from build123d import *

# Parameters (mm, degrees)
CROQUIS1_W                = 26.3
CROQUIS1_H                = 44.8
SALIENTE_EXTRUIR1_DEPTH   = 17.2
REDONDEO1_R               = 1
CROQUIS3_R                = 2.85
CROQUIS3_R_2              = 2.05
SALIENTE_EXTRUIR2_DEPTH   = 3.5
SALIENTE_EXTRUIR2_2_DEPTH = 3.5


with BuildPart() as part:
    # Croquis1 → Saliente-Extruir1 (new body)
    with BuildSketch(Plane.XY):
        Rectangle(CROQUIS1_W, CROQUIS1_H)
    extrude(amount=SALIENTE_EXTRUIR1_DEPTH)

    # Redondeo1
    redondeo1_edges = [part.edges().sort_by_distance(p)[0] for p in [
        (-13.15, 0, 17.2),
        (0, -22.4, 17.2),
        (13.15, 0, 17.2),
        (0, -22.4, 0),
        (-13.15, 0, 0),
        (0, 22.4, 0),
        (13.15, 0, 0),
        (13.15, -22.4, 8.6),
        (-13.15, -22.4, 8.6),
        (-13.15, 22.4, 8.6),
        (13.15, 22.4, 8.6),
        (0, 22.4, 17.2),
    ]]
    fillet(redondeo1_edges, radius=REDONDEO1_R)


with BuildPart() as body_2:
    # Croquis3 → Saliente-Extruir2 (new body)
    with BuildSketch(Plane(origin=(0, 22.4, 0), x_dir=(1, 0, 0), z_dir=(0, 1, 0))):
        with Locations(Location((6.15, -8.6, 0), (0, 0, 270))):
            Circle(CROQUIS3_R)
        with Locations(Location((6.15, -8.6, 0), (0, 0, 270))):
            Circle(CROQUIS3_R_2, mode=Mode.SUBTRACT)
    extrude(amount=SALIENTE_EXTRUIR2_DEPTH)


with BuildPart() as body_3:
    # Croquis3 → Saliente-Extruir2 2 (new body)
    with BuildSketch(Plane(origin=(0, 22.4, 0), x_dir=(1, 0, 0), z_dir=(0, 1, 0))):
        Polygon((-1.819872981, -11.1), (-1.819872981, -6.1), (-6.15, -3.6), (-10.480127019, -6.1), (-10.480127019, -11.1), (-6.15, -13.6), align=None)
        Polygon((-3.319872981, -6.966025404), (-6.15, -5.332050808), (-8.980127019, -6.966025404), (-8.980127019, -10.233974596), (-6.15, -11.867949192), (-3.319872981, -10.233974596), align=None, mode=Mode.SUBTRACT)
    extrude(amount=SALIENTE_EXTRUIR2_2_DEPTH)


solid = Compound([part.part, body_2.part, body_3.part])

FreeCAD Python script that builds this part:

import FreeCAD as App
import Part
import Sketcher

V = App.Vector
Q = App.Units.Quantity

doc = App.newDocument("Part")
params = doc.addObject("Spreadsheet::Sheet", "Params")
for row, (alias, value) in enumerate([
    ("sketch1_width", "26.3 mm"),
    ("sketch1_height", "44.8 mm"),
    ("pad1_length", "17.2 mm"),
    ("fillet_radius", "1 mm"),
    ("sketch2_diameter", "5.7 mm"),
    ("sketch2_diameter2", "4.1 mm"),
    ("pad2_length", "3.5 mm"),
    ("sketch3_height", "5 mm"),
    ("sketch3_length", "5 mm"),
    ("pad3_length", "3.5 mm"),
], start=1):
    params.set(f"A{row}", alias)
    params.set(f"B{row}", "=" + value)
    params.setAlias(f"B{row}", alias)

body = doc.addObject("PartDesign::Body", "Body")

sketch1 = body.newObject("Sketcher::SketchObject", "Sketch")
sketch1.AttachmentSupport = (doc.getObject("XY_Plane"), [""])
sketch1.MapMode = "FlatFace"
sketch1.addGeometry(Part.LineSegment(V(-13, 22, 0), V(-13, -22, 0)), False)
sketch1.addGeometry(Part.LineSegment(V(-13, -22, 0), V(13, -22, 0)), False)
sketch1.addGeometry(Part.LineSegment(V(13, -22, 0), V(13, 22, 0)), False)
sketch1.addGeometry(Part.LineSegment(V(13, 22, 0), V(-13, 22, 0)), False)
sketch1.addConstraint(Sketcher.Constraint("Coincident", 0, 2, 1, 1))
sketch1.addConstraint(Sketcher.Constraint("Coincident", 1, 2, 2, 1))
sketch1.addConstraint(Sketcher.Constraint("Coincident", 2, 2, 3, 1))
sketch1.addConstraint(Sketcher.Constraint("Coincident", 3, 2, 0, 1))
sketch1.addConstraint(Sketcher.Constraint("Vertical", 0))
sketch1.addConstraint(Sketcher.Constraint("Horizontal", 1))
sketch1.addConstraint(Sketcher.Constraint("Vertical", 2))
sketch1.addConstraint(Sketcher.Constraint("Horizontal", 3))
sketch1.addConstraint(Sketcher.Constraint("Symmetric", 0, 2, 2, 2, -1, 1))
sketch1.addConstraint(Sketcher.Constraint("DistanceX", 1, 1, 1, 2, Q("26.3 mm")))
sketch1.addConstraint(Sketcher.Constraint("DistanceY", 0, 2, 0, 1, Q("44.8 mm")))
sketch1.setExpression("Constraints[9]", "Params.sketch1_width")
sketch1.setExpression("Constraints[10]", "Params.sketch1_height")
pad1 = body.newObject("PartDesign::Pad", "Pad")
pad1.Profile = sketch1
pad1.setExpression("Length", "Params.pad1_length")
doc.recompute()

fillet = body.newObject("PartDesign::Fillet", "Fillet")
fillet.Base = (pad1, ["Edge1"])
fillet.UseAllEdges = True
fillet.setExpression("Radius", "Params.fillet_radius")
body2 = doc.addObject("PartDesign::Body", "Body001")

sketch2 = body2.newObject("Sketcher::SketchObject", "Sketch001")
sketch2.AttachmentSupport = (doc.getObject("XZ_Plane001"), [""])
sketch2.MapMode = "FlatFace"
sketch2.AttachmentOffset = App.Placement(V(0, 0, -22.4), App.Rotation())
sketch2.addGeometry(Part.Circle(V(6.2, 8.6, 0), V(0, 0, 1), 2.9), False)
sketch2.addGeometry(Part.Circle(V(6.2, 8.6, 0), V(0, 0, 1), 2), False)
sketch2.addConstraint(Sketcher.Constraint("Coincident", 1, 3, 0, 3))
sketch2.addConstraint(Sketcher.Constraint("Diameter", 0, Q("5.7 mm")))
sketch2.addConstraint(Sketcher.Constraint("Diameter", 1, Q("4.1 mm")))
sketch2.addConstraint(Sketcher.Constraint("DistanceY", -1, 1, 0, 3, Q("8.6 mm")))
sketch2.addConstraint(Sketcher.Constraint("DistanceX", -1, 1, 0, 3, Q("6.15 mm")))
sketch2.setExpression("Constraints[1]", "Params.sketch2_diameter")
sketch2.setExpression("Constraints[2]", "Params.sketch2_diameter2")
pad2 = body2.newObject("PartDesign::Pad", "Pad001")
pad2.Profile = sketch2
pad2.setExpression("Length", "Params.pad2_length")
pad2.Reversed = True
body3 = doc.addObject("PartDesign::Body", "Body002")

sketch3 = body3.newObject("Sketcher::SketchObject", "Sketch002")
sketch3.AttachmentSupport = (doc.getObject("XZ_Plane002"), [""])
sketch3.MapMode = "FlatFace"
sketch3.AttachmentOffset = App.Placement(V(0, 0, -22.4), App.Rotation())
sketch3.addGeometry(Part.LineSegment(V(-1.8, 11.1, 0), V(-1.8, 6.1, 0)), False)
sketch3.addGeometry(Part.LineSegment(V(-1.8, 6.1, 0), V(-6.2, 3.6, 0)), False)
sketch3.addGeometry(Part.LineSegment(V(-6.2, 3.6, 0), V(-10.5, 6.1, 0)), False)
sketch3.addGeometry(Part.LineSegment(V(-10.5, 6.1, 0), V(-10.5, 11.1, 0)), False)
sketch3.addGeometry(Part.LineSegment(V(-10.5, 11.1, 0), V(-6.2, 13.6, 0)), False)
sketch3.addGeometry(Part.LineSegment(V(-6.2, 13.6, 0), V(-1.8, 11.1, 0)), False)
sketch3.addGeometry(Part.LineSegment(V(-6.2, 5.3, 0), V(-3.3, 7, 0)), False)
sketch3.addGeometry(Part.LineSegment(V(-3.3, 7, 0), V(-3.3, 10.2, 0)), False)
sketch3.addGeometry(Part.LineSegment(V(-3.3, 10.2, 0), V(-6.2, 11.9, 0)), False)
sketch3.addGeometry(Part.LineSegment(V(-6.2, 11.9, 0), V(-9, 10.2, 0)), False)
sketch3.addGeometry(Part.LineSegment(V(-9, 10.2, 0), V(-9, 7, 0)), False)
sketch3.addGeometry(Part.LineSegment(V(-9, 7, 0), V(-6.2, 5.3, 0)), False)
sketch3.addConstraint(Sketcher.Constraint("Coincident", 0, 2, 1, 1))
sketch3.addConstraint(Sketcher.Constraint("Coincident", 1, 2, 2, 1))
sketch3.addConstraint(Sketcher.Constraint("Coincident", 2, 2, 3, 1))
sketch3.addConstraint(Sketcher.Constraint("Coincident", 3, 2, 4, 1))
sketch3.addConstraint(Sketcher.Constraint("Coincident", 4, 2, 5, 1))
sketch3.addConstraint(Sketcher.Constraint("Coincident", 5, 2, 0, 1))
sketch3.addConstraint(Sketcher.Constraint("Coincident", 6, 2, 7, 1))
sketch3.addConstraint(Sketcher.Constraint("Coincident", 7, 2, 8, 1))
sketch3.addConstraint(Sketcher.Constraint("Coincident", 8, 2, 9, 1))
sketch3.addConstraint(Sketcher.Constraint("Coincident", 9, 2, 10, 1))
sketch3.addConstraint(Sketcher.Constraint("Coincident", 10, 2, 11, 1))
sketch3.addConstraint(Sketcher.Constraint("Coincident", 11, 2, 6, 1))
sketch3.addConstraint(Sketcher.Constraint("Vertical", 0))
sketch3.addConstraint(Sketcher.Constraint("Vertical", 3))
sketch3.addConstraint(Sketcher.Constraint("Vertical", 7))
sketch3.addConstraint(Sketcher.Constraint("Vertical", 10))
sketch3.addConstraint(Sketcher.Constraint("Parallel", 1, 4))
sketch3.addConstraint(Sketcher.Constraint("Parallel", 2, 5))
sketch3.addConstraint(Sketcher.Constraint("Parallel", 4, 6))
sketch3.addConstraint(Sketcher.Constraint("Parallel", 5, 8))
sketch3.addConstraint(Sketcher.Constraint("Parallel", 6, 9))
sketch3.addConstraint(Sketcher.Constraint("Parallel", 8, 11))
sketch3.addConstraint(Sketcher.Constraint("Horizontal", 0, 2, 2, 2))
sketch3.addConstraint(Sketcher.Constraint("Horizontal", 3, 2, 5, 2))
sketch3.addConstraint(Sketcher.Constraint("Horizontal", 7, 2, 9, 2))
sketch3.addConstraint(Sketcher.Constraint("Horizontal", 6, 2, 10, 2))
sketch3.addConstraint(Sketcher.Constraint("Vertical", 1, 2, 4, 2))
sketch3.addConstraint(Sketcher.Constraint("Vertical", 4, 2, 8, 2))
sketch3.addConstraint(Sketcher.Constraint("DistanceY", 0, 2, 0, 1, Q("5 mm")))
sketch3.addConstraint(Sketcher.Constraint("Angle", 1, Q("-150 deg")))
sketch3.addConstraint(Sketcher.Constraint("Distance", 1, Q("5 mm")))
sketch3.addConstraint(Sketcher.Constraint("DistanceY", -1, 1, 0, 2, Q("6.1 mm")))
sketch3.addConstraint(Sketcher.Constraint("DistanceX", 6, 2, 0, 2, Q("1.5 mm")))
sketch3.addConstraint(Sketcher.Constraint("DistanceX", 1, 2, -1, 1, Q("6.15 mm")))
sketch3.addConstraint(Sketcher.Constraint("DistanceY", 7, 1, 7, 2, Q("3.267949 mm")))
sketch3.addConstraint(Sketcher.Constraint("DistanceY", -1, 1, 8, 2, Q("11.867949 mm")))
sketch3.setExpression("Constraints[28]", "Params.sketch3_height")
sketch3.setExpression("Constraints[30]", "Params.sketch3_length")
pad3 = body3.newObject("PartDesign::Pad", "Pad002")
pad3.Profile = sketch3
pad3.setExpression("Length", "Params.pad3_length")
pad3.Reversed = True

doc.recompute()
